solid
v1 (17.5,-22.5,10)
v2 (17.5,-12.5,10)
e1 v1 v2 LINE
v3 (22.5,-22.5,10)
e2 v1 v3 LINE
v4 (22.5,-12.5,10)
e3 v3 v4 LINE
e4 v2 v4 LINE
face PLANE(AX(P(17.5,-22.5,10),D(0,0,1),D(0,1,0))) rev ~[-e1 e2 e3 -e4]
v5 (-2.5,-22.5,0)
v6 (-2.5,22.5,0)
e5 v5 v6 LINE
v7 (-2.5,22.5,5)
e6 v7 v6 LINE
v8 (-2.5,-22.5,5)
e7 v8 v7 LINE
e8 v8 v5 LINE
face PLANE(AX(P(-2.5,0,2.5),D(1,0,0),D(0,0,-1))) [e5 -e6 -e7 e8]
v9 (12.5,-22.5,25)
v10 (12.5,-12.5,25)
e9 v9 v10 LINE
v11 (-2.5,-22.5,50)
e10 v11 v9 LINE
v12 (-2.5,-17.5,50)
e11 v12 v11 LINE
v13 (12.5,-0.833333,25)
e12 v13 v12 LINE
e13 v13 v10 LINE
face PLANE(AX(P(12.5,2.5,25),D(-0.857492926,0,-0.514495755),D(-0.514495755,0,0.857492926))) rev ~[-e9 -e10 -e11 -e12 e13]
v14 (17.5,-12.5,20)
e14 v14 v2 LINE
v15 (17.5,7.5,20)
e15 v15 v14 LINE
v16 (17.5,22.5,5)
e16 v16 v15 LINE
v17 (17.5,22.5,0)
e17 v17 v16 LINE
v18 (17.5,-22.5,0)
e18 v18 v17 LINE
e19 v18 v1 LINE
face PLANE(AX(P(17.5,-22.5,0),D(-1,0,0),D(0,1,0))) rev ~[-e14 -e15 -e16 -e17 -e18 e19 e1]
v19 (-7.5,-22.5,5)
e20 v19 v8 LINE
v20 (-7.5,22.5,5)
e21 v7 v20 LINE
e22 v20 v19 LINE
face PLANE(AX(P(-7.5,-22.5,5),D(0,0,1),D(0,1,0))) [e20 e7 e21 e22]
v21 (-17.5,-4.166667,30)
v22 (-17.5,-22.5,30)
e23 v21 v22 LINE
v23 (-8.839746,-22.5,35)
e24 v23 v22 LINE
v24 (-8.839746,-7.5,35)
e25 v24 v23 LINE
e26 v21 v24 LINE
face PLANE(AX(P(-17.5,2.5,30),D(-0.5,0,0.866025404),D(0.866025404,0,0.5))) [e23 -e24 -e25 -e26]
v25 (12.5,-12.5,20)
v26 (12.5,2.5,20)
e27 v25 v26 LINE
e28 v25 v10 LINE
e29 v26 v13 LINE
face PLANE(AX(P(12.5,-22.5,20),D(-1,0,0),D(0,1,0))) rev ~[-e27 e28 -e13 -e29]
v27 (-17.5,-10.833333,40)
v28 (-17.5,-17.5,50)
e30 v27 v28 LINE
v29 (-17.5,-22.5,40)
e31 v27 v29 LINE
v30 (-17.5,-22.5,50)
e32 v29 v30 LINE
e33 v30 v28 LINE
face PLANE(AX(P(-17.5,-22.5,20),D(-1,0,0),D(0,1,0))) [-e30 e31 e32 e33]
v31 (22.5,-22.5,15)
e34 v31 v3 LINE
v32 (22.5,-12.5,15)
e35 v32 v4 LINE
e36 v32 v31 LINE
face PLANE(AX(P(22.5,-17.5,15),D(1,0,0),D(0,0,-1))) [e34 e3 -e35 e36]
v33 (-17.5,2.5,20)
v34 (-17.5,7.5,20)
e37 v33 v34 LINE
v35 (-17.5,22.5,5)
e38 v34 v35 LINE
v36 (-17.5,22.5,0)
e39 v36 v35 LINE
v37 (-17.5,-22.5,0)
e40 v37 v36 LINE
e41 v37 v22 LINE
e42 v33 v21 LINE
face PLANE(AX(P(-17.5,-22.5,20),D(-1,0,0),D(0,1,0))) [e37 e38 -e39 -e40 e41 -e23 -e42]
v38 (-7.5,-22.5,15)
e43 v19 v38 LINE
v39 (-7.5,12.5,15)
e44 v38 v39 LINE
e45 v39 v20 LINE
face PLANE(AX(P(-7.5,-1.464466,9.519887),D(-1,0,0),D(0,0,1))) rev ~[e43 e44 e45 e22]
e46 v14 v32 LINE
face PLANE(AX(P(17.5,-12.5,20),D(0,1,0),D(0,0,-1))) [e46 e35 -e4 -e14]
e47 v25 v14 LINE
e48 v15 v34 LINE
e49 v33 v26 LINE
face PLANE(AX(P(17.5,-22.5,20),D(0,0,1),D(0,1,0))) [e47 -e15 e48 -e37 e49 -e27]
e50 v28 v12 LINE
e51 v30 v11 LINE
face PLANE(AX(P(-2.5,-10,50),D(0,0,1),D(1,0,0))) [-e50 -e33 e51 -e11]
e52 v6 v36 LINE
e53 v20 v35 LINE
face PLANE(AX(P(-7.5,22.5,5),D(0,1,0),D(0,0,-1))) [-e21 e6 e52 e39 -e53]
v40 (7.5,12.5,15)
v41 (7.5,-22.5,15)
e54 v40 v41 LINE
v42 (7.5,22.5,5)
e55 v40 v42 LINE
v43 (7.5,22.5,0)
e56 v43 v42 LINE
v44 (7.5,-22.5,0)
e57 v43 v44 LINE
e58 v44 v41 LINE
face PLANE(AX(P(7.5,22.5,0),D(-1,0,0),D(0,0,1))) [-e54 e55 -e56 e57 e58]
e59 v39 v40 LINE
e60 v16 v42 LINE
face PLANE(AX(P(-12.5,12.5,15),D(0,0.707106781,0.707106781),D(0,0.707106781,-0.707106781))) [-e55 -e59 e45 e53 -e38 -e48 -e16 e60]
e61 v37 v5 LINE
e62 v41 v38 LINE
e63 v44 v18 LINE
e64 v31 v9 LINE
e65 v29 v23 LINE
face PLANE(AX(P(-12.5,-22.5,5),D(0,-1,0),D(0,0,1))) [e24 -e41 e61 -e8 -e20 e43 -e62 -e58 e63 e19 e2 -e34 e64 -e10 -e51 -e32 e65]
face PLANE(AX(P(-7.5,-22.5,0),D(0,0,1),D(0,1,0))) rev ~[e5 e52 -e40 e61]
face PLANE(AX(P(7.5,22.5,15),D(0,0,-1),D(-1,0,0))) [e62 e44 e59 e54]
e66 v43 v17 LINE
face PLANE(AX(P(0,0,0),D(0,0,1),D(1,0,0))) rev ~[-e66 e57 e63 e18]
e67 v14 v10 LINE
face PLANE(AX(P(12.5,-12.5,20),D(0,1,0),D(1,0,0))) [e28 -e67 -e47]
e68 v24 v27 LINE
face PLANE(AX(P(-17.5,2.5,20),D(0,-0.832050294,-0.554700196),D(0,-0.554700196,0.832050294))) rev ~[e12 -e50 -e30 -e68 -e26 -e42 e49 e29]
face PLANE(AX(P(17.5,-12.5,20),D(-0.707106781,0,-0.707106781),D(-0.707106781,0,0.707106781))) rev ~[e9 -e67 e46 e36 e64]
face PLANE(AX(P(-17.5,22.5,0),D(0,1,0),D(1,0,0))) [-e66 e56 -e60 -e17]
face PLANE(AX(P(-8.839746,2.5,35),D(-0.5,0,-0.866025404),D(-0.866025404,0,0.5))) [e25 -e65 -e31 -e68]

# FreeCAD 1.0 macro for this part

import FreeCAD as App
import Part
import Sketcher
from FreeCAD import Vector
Q = App.Units.Quantity


def add_polygon(sketch, points):
    """Adds a closed chain of lines whose ends are joined by coincident constraints."""
    first, n = sketch.GeometryCount, len(points)
    for a, b in zip(points, points[1:] + points[:1]):
        sketch.addGeometry(Part.LineSegment(App.Vector(*a, 0), App.Vector(*b, 0)), False)
    for i in range(n):
        sketch.addConstraint(Sketcher.Constraint("Coincident", first + i, 2, first + (i + 1) % n, 1))

doc = App.newDocument("Part")
body = doc.addObject("PartDesign::Body", "Body")

# Sketch on XY plane
sketch1 = body.newObject("Sketcher::SketchObject", "Sketch")
sketch1.AttachmentSupport = (doc.getObject("XY_Plane"), [""])
sketch1.MapMode = "FlatFace"
add_polygon(sketch1, [(-18, 22), (-18, -22), (18, -22), (18, 22)])  # lines 0-3
sketch1.addConstraint([
    Sketcher.Constraint("Vertical", 0),
    Sketcher.Constraint("Horizontal", 1),
    Sketcher.Constraint("Vertical", 2),
    Sketcher.Constraint("Horizontal", 3),
    Sketcher.Constraint("Symmetric", 0, 2, 2, 2, -1, 1),
    Sketcher.Constraint("DistanceX", 1, 1, 1, 2, Q("35 mm")),
    Sketcher.Constraint("DistanceY", 0, 2, 0, 1, Q("45 mm")),
])
pad1 = body.newObject("PartDesign::Pad", "Pad")
pad1.Profile = sketch1
pad1.Length = 20

# Sketch on XZ plane
sketch2 = body.newObject("Sketcher::SketchObject", "Sketch001")
sketch2.AttachmentSupport = (doc.getObject("XZ_Plane"), [""])
sketch2.MapMode = "FlatFace"
sketch2.AttachmentOffset = App.Placement(Vector(0, 0, -22.5), App.Rotation())
add_polygon(sketch2, [(8, 15), (8, 0), (-8, 0), (-8, 5), (-12, 5), (-12, 15)])  # lines 0-5
sketch2.addConstraint([
    Sketcher.Constraint("Vertical", 0),
    Sketcher.Constraint("Horizontal", 1),
    Sketcher.Constraint("Vertical", 2),
    Sketcher.Constraint("Horizontal", 3),
    Sketcher.Constraint("Vertical", 4),
    Sketcher.Constraint("Horizontal", 5),
    Sketcher.Constraint("Symmetric", 0, 2, 1, 2, -1, 1),
    Sketcher.Constraint("Equal", 1, 0),
    Sketcher.Constraint("Equal", 3, 2),
    Sketcher.Constraint("DistanceX", 1, 2, 1, 1, Q("15 mm")),
    Sketcher.Constraint("DistanceX", 3, 2, 3, 1, Q("5 mm")),
])
pocket1 = body.newObject("PartDesign::Pocket", "Pocket")
pocket1.Profile = sketch2
pocket1.Type = "ThroughAll"
pocket1.Reversed = True

# Sketch on YZ plane
sketch3 = body.newObject("Sketcher::SketchObject", "Sketch002")
sketch3.AttachmentSupport = (doc.getObject("YZ_Plane"), [""])
sketch3.MapMode = "FlatFace"
sketch3.AttachmentOffset = App.Placement(Vector(0, 0, 17.5), App.Rotation())
add_polygon(sketch3, [(8, 20), (22, 5), (22, 20)])  # lines 0-2
sketch3.addConstraint([
    Sketcher.Constraint("Vertical", 1),
    Sketcher.Constraint("Horizontal", 2),
    Sketcher.Constraint("Equal", 2, 1),
    Sketcher.Constraint("DistanceX", 2, 2, 2, 1, Q("15 mm")),
    Sketcher.Constraint("DistanceY", -1, 1, 0, 2, Q("5 mm")),
    Sketcher.Constraint("DistanceX", -1, 1, 0, 2, Q("22.5 mm")),
])
pocket2 = body.newObject("PartDesign::Pocket", "Pocket001")
pocket2.Profile = sketch3
pocket2.Type = "ThroughAll"

# Sketch on YZ plane
sketch4 = body.newObject("Sketcher::SketchObject", "Sketch003")
sketch4.AttachmentSupport = (doc.getObject("YZ_Plane"), [""])
sketch4.MapMode = "FlatFace"
sketch4.AttachmentOffset = App.Placement(Vector(0, 0, 17.5), App.Rotation())
add_polygon(sketch4, [(-12, 20), (-22, 20), (-22, 10), (-12, 10)])  # lines 0-3
sketch4.addConstraint([
    Sketcher.Constraint("Horizontal", 0),
    Sketcher.Constraint("Vertical", 1),
    Sketcher.Constraint("Horizontal", 2),
    Sketcher.Constraint("Vertical", 3),
    Sketcher.Constraint("Equal", 2, 1),
    Sketcher.Constraint("DistanceX", 0, 2, 0, 1, Q("10 mm")),
    Sketcher.Constraint("DistanceY", -1, 1, 0, 2, Q("20 mm")),
    Sketcher.Constraint("DistanceX", 0, 2, -1, 1, Q("22.5 mm")),
])
pad2 = body.newObject("PartDesign::Pad", "Pad001")
pad2.Profile = sketch4
pad2.Length = 5

# Sketch on XZ plane
sketch5 = body.newObject("Sketcher::SketchObject", "Sketch004")
sketch5.AttachmentSupport = (doc.getObject("XZ_Plane"), [""])
sketch5.MapMode = "FlatFace"
sketch5.AttachmentOffset = App.Placement(Vector(0, 0, 12.5), App.Rotation())
add_polygon(sketch5, [(22, 15), (18, 20), (22, 20)])  # lines 0-2
sketch5.addConstraint([
    Sketcher.Constraint("Horizontal", 1),
    Sketcher.Constraint("Vertical", 2),
    Sketcher.Constraint("Equal", 1, 2),
    Sketcher.Constraint("DistanceX", 1, 1, 1, 2, Q("5 mm")),
    Sketcher.Constraint("DistanceY", -1, 1, 0, 2, Q("20 mm")),
    Sketcher.Constraint("DistanceX", -1, 1, 0, 2, Q("17.5 mm")),
])
pocket3 = body.newObject("PartDesign::Pocket", "Pocket002")
pocket3.Profile = sketch5
pocket3.Type = "ThroughAll"
pocket3.Reversed = True

# Sketch on XY plane
sketch6 = body.newObject("Sketcher::SketchObject", "Sketch005")
sketch6.AttachmentSupport = (doc.getObject("XY_Plane"), [""])
sketch6.MapMode = "FlatFace"
sketch6.AttachmentOffset = App.Placement(Vector(0, 0, 20), App.Rotation())
add_polygon(sketch6, [(-18, 2), (-18, -22), (12, -22), (12, 2)])  # lines 0-3
sketch6.addConstraint([
    Sketcher.Constraint("Vertical", 0),
    Sketcher.Constraint("Horizontal", 1),
    Sketcher.Constraint("Vertical", 2),
    Sketcher.Constraint("Horizontal", 3),
    Sketcher.Constraint("DistanceX", 1, 1, 1, 2, Q("30 mm")),
    Sketcher.Constraint("DistanceY", 0, 2, 0, 1, Q("25 mm")),
    Sketcher.Constraint("DistanceX", 0, 2, -1, 1, Q("17.5 mm")),
    Sketcher.Constraint("DistanceY", 0, 2, -1, 1, Q("22.5 mm")),
])
pad3 = body.newObject("PartDesign::Pad", "Pad002")
pad3.Profile = sketch6
pad3.Length = 30

# Sketch on XY plane
sketch7 = body.newObject("Sketcher::SketchObject", "Sketch006")
sketch7.AttachmentSupport = (doc.getObject("XY_Plane"), [""])
sketch7.MapMode = "FlatFace"
sketch7.AttachmentOffset = App.Placement(Vector(0, 0, 20), App.Rotation())
add_polygon(sketch7, [(12, -12), (12, -22), (18, -22), (18, -12)])  # lines 0-3
sketch7.addConstraint([
    Sketcher.Constraint("Vertical", 0),
    Sketcher.Constraint("Horizontal", 1),
    Sketcher.Constraint("Vertical", 2),
    Sketcher.Constraint("Horizontal", 3),
    Sketcher.Constraint("DistanceX", 1, 1, 1, 2, Q("5 mm")),
    Sketcher.Constraint("DistanceY", 0, 2, 0, 1, Q("10 mm")),
    Sketcher.Constraint("DistanceX", -1, 1, 0, 2, Q("12.5 mm")),
    Sketcher.Constraint("DistanceY", 0, 2, -1, 1, Q("22.5 mm")),
])
pad4 = body.newObject("PartDesign::Pad", "Pad003")
pad4.Profile = sketch7
pad4.Length = 5

# Sketch on XZ plane
sketch8 = body.newObject("Sketcher::SketchObject", "Sketch007")
sketch8.AttachmentSupport = (doc.getObject("XZ_Plane"), [""])
sketch8.MapMode = "FlatFace"
sketch8.AttachmentOffset = App.Placement(Vector(0, 0, 12.5), App.Rotation())
add_polygon(sketch8, [(18, 20), (12, 25), (18, 25)])  # lines 0-2
sketch8.addConstraint([
    Sketcher.Constraint("Horizontal", 1),
    Sketcher.Constraint("Vertical", 2),
    Sketcher.Constraint("Equal", 1, 2),
    Sketcher.Constraint("DistanceX", 1, 1, 1, 2, Q("5 mm")),
    Sketcher.Constraint("DistanceY", -1, 1, 0, 2, Q("25 mm")),
    Sketcher.Constraint("DistanceX", -1, 1, 0, 2, Q("12.5 mm")),
])
pocket4 = body.newObject("PartDesign::Pocket", "Pocket003")
pocket4.Profile = sketch8
pocket4.Type = "ThroughAll"
pocket4.Reversed = True

# Sketch on YZ plane
sketch9 = body.newObject("Sketcher::SketchObject", "Sketch008")
sketch9.AttachmentSupport = (doc.getObject("YZ_Plane"), [""])
sketch9.MapMode = "FlatFace"
sketch9.AttachmentOffset = App.Placement(Vector(0, 0, -7.5), App.Rotation())
add_polygon(sketch9, [(22, 5), (-22, 5), (-22, 0), (22, 0)])  # lines 0-3
sketch9.addConstraint([
    Sketcher.Constraint("Horizontal", 0),
    Sketcher.Constraint("Vertical", 1),
    Sketcher.Constraint("Horizontal", 2),
    Sketcher.Constraint("Vertical", 3),
    Sketcher.Constraint("Symmetric", 1, 2, 2, 2, -1, 1),
    Sketcher.Constraint("DistanceX", 0, 2, 0, 1, Q("45 mm")),
    Sketcher.Constraint("DistanceY", 1, 2, 1, 1, Q("5 mm")),
])
pad5 = body.newObject("PartDesign::Pad", "Pad004")
pad5.Profile = sketch9
pad5.Length = 5

# Sketch on YZ plane
sketch10 = body.newObject("Sketcher::SketchObject", "Sketch009")
sketch10.AttachmentSupport = (doc.getObject("YZ_Plane"), [""])
sketch10.MapMode = "FlatFace"
sketch10.AttachmentOffset = App.Placement(Vector(0, 0, -12.5), App.Rotation())
add_polygon(sketch10, [(-22, 5), (22, 5), (12, 15), (-22, 15)])  # lines 0-3
sketch10.addConstraint([
    Sketcher.Constraint("Horizontal", 0),
    Sketcher.Constraint("Horizontal", 2),
    Sketcher.Constraint("Vertical", 3),
    Sketcher.Constraint("DistanceX", 0, 1, 0, 2, Q("45 mm")),
    Sketcher.Constraint("DistanceX", 2, 2, 2, 1, Q("35 mm")),
    Sketcher.Constraint("DistanceY", 3, 2, 3, 1, Q("10 mm")),
    Sketcher.Constraint("DistanceY", -1, 1, 0, 2, Q("5 mm")),
    Sketcher.Constraint("DistanceX", -1, 1, 0, 2, Q("22.5 mm")),
])
pad6 = body.newObject("PartDesign::Pad", "Pad005")
pad6.Profile = sketch10
pad6.Length = 5

# Sketch on XZ plane
sketch11 = body.newObject("Sketcher::SketchObject", "Sketch010")
sketch11.AttachmentSupport = (doc.getObject("XZ_Plane"), [""])
sketch11.MapMode = "FlatFace"
sketch11.AttachmentOffset = App.Placement(Vector(0, 0, -2.5), App.Rotation())
add_polygon(sketch11, [(12, 25), (-2, 50), (12, 50)])  # lines 0-2
sketch11.addConstraint([
    Sketcher.Constraint("Horizontal", 1),
    Sketcher.Constraint("Vertical", 2),
    Sketcher.Constraint("DistanceX", 1, 1, 1, 2, Q("15 mm")),
    Sketcher.Constraint("DistanceY", 2, 2, 2, 1, Q("25 mm")),
    Sketcher.Constraint("DistanceY", -1, 1, 0, 2, Q("50 mm")),
    Sketcher.Constraint("DistanceX", 0, 2, -1, 1, Q("2.5 mm")),
])
pocket5 = body.newObject("PartDesign::Pocket", "Pocket004")
pocket5.Profile = sketch11
pocket5.Type = "ThroughAll"
pocket5.Reversed = True

# Sketch on XZ plane
sketch12 = body.newObject("Sketcher::SketchObject", "Sketch011")
sketch12.AttachmentSupport = (doc.getObject("XZ_Plane"), [""])
sketch12.MapMode = "FlatFace"
sketch12.AttachmentOffset = App.Placement(Vector(0, 0, -2.5), App.Rotation())
add_polygon(sketch12, [(-9, 35), (-18, 30), (-18, 40)])  # lines 0-2
sketch12.addConstraint([
    Sketcher.Constraint("Vertical", 1),
    Sketcher.Constraint("Equal", 0, 2),
    Sketcher.Constraint("DistanceY", 1, 1, 1, 2, Q("10 mm")),
    Sketcher.Constraint("Angle", 0, Q("-150 deg")),
    Sketcher.Constraint("DistanceY", -1, 1, 0, 2, Q("30 mm")),
    Sketcher.Constraint("DistanceX", 0, 2, -1, 1, Q("17.5 mm")),
])
pocket6 = body.newObject("PartDesign::Pocket", "Pocket005")
pocket6.Profile = sketch12
pocket6.Type = "ThroughAll"
pocket6.Reversed = True

# Sketch on YZ plane
sketch13 = body.newObject("Sketcher::SketchObject", "Sketch012")
sketch13.AttachmentSupport = (doc.getObject("YZ_Plane"), [""])
sketch13.MapMode = "FlatFace"
sketch13.AttachmentOffset = App.Placement(Vector(0, 0, -17.5), App.Rotation())
add_polygon(sketch13, [(-18, 50), (2, 20), (2, 50)])  # lines 0-2
sketch13.addConstraint([
    Sketcher.Constraint("Vertical", 1),
    Sketcher.Constraint("Horizontal", 2),
    Sketcher.Constraint("DistanceX", 2, 2, 2, 1, Q("20 mm")),
    Sketcher.Constraint("DistanceY", 1, 1, 1, 2, Q("30 mm")),
    Sketcher.Constraint("DistanceY", -1, 1, 0, 2, Q("20 mm")),
    Sketcher.Constraint("DistanceX", -1, 1, 0, 2, Q("2.5 mm")),
])
pocket7 = body.newObject("PartDesign::Pocket", "Pocket006")
pocket7.Profile = sketch13
pocket7.Type = "ThroughAll"
pocket7.Reversed = True

doc.recompute()
